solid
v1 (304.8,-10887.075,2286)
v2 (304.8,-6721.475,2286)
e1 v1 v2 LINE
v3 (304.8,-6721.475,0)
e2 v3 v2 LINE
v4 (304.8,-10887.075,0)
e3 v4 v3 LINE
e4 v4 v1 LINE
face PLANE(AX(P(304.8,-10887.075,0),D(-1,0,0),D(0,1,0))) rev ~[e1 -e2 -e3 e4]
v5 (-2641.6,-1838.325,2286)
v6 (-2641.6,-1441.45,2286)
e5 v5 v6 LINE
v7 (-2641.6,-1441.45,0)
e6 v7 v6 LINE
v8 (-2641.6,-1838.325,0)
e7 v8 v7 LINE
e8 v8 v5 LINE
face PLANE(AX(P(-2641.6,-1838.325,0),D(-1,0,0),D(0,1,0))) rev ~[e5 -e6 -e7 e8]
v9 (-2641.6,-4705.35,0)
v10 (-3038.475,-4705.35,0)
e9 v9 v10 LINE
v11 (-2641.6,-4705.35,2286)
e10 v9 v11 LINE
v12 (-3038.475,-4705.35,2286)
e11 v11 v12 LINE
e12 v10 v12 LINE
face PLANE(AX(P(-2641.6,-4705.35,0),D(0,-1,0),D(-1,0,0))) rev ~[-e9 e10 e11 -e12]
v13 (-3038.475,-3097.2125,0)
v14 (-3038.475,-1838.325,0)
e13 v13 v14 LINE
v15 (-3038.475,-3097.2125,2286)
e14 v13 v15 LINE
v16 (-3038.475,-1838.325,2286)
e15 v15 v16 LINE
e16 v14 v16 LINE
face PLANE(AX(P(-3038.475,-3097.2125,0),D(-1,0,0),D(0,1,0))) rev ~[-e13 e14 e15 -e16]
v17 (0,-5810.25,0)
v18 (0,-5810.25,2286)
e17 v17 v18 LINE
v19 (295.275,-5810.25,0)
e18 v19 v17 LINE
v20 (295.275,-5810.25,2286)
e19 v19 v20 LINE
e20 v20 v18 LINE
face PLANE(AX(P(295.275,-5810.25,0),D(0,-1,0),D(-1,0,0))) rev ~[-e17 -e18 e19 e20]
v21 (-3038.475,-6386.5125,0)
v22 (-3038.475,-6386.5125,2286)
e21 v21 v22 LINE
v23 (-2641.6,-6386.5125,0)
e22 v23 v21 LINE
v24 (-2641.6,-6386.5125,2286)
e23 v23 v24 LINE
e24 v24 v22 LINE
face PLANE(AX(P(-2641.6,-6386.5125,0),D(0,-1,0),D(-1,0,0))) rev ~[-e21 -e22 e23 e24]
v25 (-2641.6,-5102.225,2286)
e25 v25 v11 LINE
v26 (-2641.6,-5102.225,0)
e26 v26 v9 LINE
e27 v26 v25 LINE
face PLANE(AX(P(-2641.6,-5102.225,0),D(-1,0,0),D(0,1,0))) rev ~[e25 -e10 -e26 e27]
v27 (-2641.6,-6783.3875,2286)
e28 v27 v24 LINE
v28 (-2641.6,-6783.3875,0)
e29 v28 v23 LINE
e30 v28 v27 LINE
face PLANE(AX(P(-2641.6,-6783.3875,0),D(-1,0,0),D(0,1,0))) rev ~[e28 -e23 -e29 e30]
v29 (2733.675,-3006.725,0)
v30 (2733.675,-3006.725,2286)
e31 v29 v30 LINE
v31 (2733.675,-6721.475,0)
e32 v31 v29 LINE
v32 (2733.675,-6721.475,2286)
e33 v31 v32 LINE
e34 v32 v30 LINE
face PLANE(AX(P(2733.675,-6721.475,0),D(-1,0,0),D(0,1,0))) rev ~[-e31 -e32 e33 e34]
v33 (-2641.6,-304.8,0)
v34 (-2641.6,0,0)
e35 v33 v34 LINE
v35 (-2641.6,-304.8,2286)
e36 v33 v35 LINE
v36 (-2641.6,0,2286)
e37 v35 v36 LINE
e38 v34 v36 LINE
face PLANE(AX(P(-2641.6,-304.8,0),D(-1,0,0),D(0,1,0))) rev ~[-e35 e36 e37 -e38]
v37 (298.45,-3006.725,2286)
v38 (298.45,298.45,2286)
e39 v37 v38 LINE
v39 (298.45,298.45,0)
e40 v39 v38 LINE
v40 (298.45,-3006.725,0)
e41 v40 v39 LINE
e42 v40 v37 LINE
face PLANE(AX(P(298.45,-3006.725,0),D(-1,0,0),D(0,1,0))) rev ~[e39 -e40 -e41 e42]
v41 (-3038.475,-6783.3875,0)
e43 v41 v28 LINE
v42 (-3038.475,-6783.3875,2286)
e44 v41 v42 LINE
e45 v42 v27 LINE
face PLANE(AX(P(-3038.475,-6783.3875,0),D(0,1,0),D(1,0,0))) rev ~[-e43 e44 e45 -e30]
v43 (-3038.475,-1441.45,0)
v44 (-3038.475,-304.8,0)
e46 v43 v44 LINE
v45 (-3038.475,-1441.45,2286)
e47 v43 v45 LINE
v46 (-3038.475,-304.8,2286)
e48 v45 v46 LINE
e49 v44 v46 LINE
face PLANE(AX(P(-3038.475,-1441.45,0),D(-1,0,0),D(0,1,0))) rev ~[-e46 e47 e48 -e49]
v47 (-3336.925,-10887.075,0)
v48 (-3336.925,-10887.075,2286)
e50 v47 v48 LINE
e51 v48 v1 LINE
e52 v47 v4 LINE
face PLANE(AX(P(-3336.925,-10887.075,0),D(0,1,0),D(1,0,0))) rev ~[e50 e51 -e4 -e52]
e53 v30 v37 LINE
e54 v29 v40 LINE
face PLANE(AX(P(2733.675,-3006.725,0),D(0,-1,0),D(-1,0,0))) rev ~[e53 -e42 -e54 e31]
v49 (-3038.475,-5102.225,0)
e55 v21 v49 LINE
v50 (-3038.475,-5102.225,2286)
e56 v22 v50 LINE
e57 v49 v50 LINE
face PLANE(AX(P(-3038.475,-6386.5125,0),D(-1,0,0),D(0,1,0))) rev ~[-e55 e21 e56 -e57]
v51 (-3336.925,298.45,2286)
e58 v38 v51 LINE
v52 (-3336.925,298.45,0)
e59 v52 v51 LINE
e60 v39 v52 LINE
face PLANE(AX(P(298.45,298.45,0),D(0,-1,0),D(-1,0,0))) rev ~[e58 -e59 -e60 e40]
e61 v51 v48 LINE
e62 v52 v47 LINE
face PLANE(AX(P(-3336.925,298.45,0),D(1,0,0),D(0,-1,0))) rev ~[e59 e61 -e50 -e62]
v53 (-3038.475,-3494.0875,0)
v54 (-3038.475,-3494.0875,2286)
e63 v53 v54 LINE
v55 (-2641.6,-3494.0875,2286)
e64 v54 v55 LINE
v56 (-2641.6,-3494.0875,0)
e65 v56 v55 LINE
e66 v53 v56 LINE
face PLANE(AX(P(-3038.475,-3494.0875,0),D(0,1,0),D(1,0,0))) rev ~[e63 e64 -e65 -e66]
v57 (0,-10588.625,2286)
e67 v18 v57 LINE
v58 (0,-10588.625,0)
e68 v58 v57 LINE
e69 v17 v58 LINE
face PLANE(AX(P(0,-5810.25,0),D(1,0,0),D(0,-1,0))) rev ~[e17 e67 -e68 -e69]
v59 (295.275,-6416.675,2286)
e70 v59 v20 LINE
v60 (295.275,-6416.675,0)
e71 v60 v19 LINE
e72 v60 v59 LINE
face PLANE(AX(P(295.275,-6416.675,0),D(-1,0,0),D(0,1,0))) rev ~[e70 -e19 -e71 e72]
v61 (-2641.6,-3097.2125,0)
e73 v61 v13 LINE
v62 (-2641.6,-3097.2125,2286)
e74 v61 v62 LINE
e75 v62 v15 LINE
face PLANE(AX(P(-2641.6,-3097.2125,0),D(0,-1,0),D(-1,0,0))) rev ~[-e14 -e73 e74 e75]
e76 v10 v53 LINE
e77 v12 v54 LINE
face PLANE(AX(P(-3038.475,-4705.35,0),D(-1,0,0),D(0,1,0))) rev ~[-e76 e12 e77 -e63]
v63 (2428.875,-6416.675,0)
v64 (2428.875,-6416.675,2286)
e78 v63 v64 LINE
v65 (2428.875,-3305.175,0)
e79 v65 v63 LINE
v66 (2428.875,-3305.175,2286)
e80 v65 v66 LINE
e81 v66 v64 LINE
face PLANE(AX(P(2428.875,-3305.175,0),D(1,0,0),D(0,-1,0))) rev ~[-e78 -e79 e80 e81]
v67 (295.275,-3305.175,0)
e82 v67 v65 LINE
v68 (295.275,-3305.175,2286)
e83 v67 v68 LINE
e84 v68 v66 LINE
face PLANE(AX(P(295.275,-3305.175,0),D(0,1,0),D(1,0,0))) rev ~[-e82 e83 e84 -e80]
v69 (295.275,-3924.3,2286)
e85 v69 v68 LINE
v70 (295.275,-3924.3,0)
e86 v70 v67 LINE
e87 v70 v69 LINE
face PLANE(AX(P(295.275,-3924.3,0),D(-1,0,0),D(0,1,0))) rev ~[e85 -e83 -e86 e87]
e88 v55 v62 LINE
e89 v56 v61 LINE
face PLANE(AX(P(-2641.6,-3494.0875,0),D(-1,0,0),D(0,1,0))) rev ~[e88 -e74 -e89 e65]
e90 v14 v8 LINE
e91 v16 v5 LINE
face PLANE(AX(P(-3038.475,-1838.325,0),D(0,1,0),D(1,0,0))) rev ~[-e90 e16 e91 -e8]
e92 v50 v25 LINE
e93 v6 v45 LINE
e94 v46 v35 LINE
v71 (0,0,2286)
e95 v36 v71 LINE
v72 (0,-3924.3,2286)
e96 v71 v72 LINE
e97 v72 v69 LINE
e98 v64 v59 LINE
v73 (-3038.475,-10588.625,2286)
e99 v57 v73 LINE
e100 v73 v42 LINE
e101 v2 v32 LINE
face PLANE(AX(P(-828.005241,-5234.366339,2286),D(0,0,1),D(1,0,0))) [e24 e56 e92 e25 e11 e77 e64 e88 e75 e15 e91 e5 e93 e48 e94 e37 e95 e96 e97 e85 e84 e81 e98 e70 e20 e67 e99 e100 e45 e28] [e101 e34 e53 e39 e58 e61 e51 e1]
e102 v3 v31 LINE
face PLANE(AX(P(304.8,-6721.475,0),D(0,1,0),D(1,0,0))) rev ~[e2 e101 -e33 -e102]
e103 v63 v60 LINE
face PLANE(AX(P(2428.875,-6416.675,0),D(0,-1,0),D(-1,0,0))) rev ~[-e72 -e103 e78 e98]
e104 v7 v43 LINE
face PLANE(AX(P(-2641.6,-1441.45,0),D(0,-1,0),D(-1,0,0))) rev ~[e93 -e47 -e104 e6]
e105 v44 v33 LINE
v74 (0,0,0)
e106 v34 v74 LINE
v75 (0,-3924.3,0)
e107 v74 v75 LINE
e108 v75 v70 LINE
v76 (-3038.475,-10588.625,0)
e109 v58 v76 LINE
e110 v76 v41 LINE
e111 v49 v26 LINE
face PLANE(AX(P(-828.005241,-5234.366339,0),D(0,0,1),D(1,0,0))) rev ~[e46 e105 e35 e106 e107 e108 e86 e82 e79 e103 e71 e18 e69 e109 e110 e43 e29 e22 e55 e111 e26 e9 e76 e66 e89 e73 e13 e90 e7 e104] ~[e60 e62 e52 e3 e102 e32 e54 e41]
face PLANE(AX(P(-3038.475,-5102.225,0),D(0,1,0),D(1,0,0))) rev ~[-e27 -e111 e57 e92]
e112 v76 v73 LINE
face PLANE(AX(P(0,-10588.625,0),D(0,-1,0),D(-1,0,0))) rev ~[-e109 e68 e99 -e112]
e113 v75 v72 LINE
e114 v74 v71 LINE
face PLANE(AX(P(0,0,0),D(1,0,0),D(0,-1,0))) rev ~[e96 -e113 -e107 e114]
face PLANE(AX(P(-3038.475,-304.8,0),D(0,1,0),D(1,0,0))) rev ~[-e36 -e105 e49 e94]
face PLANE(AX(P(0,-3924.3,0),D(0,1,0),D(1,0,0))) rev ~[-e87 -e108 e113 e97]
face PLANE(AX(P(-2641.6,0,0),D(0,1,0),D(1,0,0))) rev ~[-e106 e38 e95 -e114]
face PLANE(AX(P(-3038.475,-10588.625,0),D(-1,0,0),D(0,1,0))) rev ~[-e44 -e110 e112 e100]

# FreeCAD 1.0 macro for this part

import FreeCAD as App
import Part
import Sketcher
Q = App.Units.Quantity

doc = App.newDocument("Part")
body = doc.addObject("PartDesign::Body", "Body")

# Sketch on XY plane
sketch1 = doc.addObject("Sketcher::SketchObject", "Sketch")
body.addObject(sketch1)
sketch1.AttachmentSupport = (doc.XY_Plane, [""])
sketch1.MapMode = "FlatFace"
sketch1.addGeometry(Part.LineSegment(App.Vector(298, 298, 0), App.Vector(-3337, 298, 0)), False)
sketch1.addGeometry(Part.LineSegment(App.Vector(-3337, 298, 0), App.Vector(-3337, -10887, 0)), False)
sketch1.addGeometry(Part.LineSegment(App.Vector(-3337, -10887, 0), App.Vector(305, -10887, 0)), False)
sketch1.addGeometry(Part.LineSegment(App.Vector(305, -10887, 0), App.Vector(305, -6721, 0)), False)
sketch1.addGeometry(Part.LineSegment(App.Vector(305, -6721, 0), App.Vector(2734, -6721, 0)), False)
sketch1.addGeometry(Part.LineSegment(App.Vector(2734, -6721, 0), App.Vector(2734, -3007, 0)), False)
sketch1.addGeometry(Part.LineSegment(App.Vector(2734, -3007, 0), App.Vector(298, -3007, 0)), False)
sketch1.addGeometry(Part.LineSegment(App.Vector(298, -3007, 0), App.Vector(298, 298, 0)), False)
sketch1.addGeometry(Part.LineSegment(App.Vector(-2642, -305, 0), App.Vector(-2642, 0, 0)), False)
sketch1.addGeometry(Part.LineSegment(App.Vector(-2642, 0, 0), App.Vector(0, 0, 0)), False)
sketch1.addGeometry(Part.LineSegment(App.Vector(0, 0, 0), App.Vector(0, -3924, 0)), False)
sketch1.addGeometry(Part.LineSegment(App.Vector(0, -3924, 0), App.Vector(295, -3924, 0)), False)
sketch1.addGeometry(Part.LineSegment(App.Vector(295, -3924, 0), App.Vector(295, -3305, 0)), False)
sketch1.addGeometry(Part.LineSegment(App.Vector(295, -3305, 0), App.Vector(2429, -3305, 0)), False)
sketch1.addGeometry(Part.LineSegment(App.Vector(2429, -3305, 0), App.Vector(2429, -6417, 0)), False)
sketch1.addGeometry(Part.LineSegment(App.Vector(2429, -6417, 0), App.Vector(295, -6417, 0)), False)
sketch1.addGeometry(Part.LineSegment(App.Vector(295, -6417, 0), App.Vector(295, -5810, 0)), False)
sketch1.addGeometry(Part.LineSegment(App.Vector(295, -5810, 0), App.Vector(0, -5810, 0)), False)
sketch1.addGeometry(Part.LineSegment(App.Vector(0, -5810, 0), App.Vector(0, -10589, 0)), False)
sketch1.addGeometry(Part.LineSegment(App.Vector(0, -10589, 0), App.Vector(-3038, -10589, 0)), False)
sketch1.addGeometry(Part.LineSegment(App.Vector(-3038, -10589, 0), App.Vector(-3038, -6783, 0)), False)
sketch1.addGeometry(Part.LineSegment(App.Vector(-3038, -6783, 0), App.Vector(-2642, -6783, 0)), False)
sketch1.addGeometry(Part.LineSegment(App.Vector(-2642, -6783, 0), App.Vector(-2642, -6387, 0)), False)
sketch1.addGeometry(Part.LineSegment(App.Vector(-2642, -6387, 0), App.Vector(-3038, -6387, 0)), False)
sketch1.addGeometry(Part.LineSegment(App.Vector(-3038, -6387, 0), App.Vector(-3038, -5102, 0)), False)
sketch1.addGeometry(Part.LineSegment(App.Vector(-3038, -5102, 0), App.Vector(-2642, -5102, 0)), False)
sketch1.addGeometry(Part.LineSegment(App.Vector(-2642, -5102, 0), App.Vector(-2642, -4705, 0)), False)
sketch1.addGeometry(Part.LineSegment(App.Vector(-2642, -4705, 0), App.Vector(-3038, -4705, 0)), False)
sketch1.addGeometry(Part.LineSegment(App.Vector(-3038, -4705, 0), App.Vector(-3038, -3494, 0)), False)
sketch1.addGeometry(Part.LineSegment(App.Vector(-3038, -3494, 0), App.Vector(-2642, -3494, 0)), False)
sketch1.addGeometry(Part.LineSegment(App.Vector(-2642, -3494, 0), App.Vector(-2642, -3097, 0)), False)
sketch1.addGeometry(Part.LineSegment(App.Vector(-2642, -3097, 0), App.Vector(-3038, -3097, 0)), False)
sketch1.addGeometry(Part.LineSegment(App.Vector(-3038, -3097, 0), App.Vector(-3038, -1838, 0)), False)
sketch1.addGeometry(Part.LineSegment(App.Vector(-3038, -1838, 0), App.Vector(-2642, -1838, 0)), False)
sketch1.addGeometry(Part.LineSegment(App.Vector(-2642, -1838, 0), App.Vector(-2642, -1441, 0)), False)
sketch1.addGeometry(Part.LineSegment(App.Vector(-2642, -1441, 0), App.Vector(-3038, -1441, 0)), False)
sketch1.addGeometry(Part.LineSegment(App.Vector(-3038, -1441, 0), App.Vector(-3038, -305, 0)), False)
sketch1.addGeometry(Part.LineSegment(App.Vector(-3038, -305, 0), App.Vector(-2642, -305, 0)), False)
sketch1.addConstraint(Sketcher.Constraint("Coincident", 0, 2, 1, 1))
sketch1.addConstraint(Sketcher.Constraint("Coincident", 1, 2, 2, 1))
sketch1.addConstraint(Sketcher.Constraint("Coincident", 2, 2, 3, 1))
sketch1.addConstraint(Sketcher.Constraint("Coincident", 3, 2, 4, 1))
sketch1.addConstraint(Sketcher.Constraint("Coincident", 4, 2, 5, 1))
sketch1.addConstraint(Sketcher.Constraint("Coincident", 5, 2, 6, 1))
sketch1.addConstraint(Sketcher.Constraint("Coincident", 6, 2, 7, 1))
sketch1.addConstraint(Sketcher.Constraint("Coincident", 7, 2, 0, 1))
sketch1.addConstraint(Sketcher.Constraint("Coincident", 8, 2, 9, 1))
sketch1.addConstraint(Sketcher.Constraint("Coincident", 9, 2, 10, 1))
sketch1.addConstraint(Sketcher.Constraint("Coincident", 10, 2, 11, 1))
sketch1.addConstraint(Sketcher.Constraint("Coincident", 11, 2, 12, 1))
sketch1.addConstraint(Sketcher.Constraint("Coincident", 12, 2, 13, 1))
sketch1.addConstraint(Sketcher.Constraint("Coincident", 13, 2, 14, 1))
sketch1.addConstraint(Sketcher.Constraint("Coincident", 14, 2, 15, 1))
sketch1.addConstraint(Sketcher.Constraint("Coincident", 15, 2, 16, 1))
sketch1.addConstraint(Sketcher.Constraint("Coincident", 16, 2, 17, 1))
sketch1.addConstraint(Sketcher.Constraint("Coincident", 17, 2, 18, 1))
sketch1.addConstraint(Sketcher.Constraint("Coincident", 18, 2, 19, 1))
sketch1.addConstraint(Sketcher.Constraint("Coincident", 19, 2, 20, 1))
sketch1.addConstraint(Sketcher.Constraint("Coincident", 20, 2, 21, 1))
sketch1.addConstraint(Sketcher.Constraint("Coincident", 21, 2, 22, 1))
sketch1.addConstraint(Sketcher.Constraint("Coincident", 22, 2, 23, 1))
sketch1.addConstraint(Sketcher.Constraint("Coincident", 23, 2, 24, 1))
sketch1.addConstraint(Sketcher.Constraint("Coincident", 24, 2, 25, 1))
sketch1.addConstraint(Sketcher.Constraint("Coincident", 25, 2, 26, 1))
sketch1.addConstraint(Sketcher.Constraint("Coincident", 26, 2, 27, 1))
sketch1.addConstraint(Sketcher.Constraint("Coincident", 27, 2, 28, 1))
sketch1.addConstraint(Sketcher.Constraint("Coincident", 28, 2, 29, 1))
sketch1.addConstraint(Sketcher.Constraint("Coincident", 29, 2, 30, 1))
sketch1.addConstraint(Sketcher.Constraint("Coincident", 30, 2, 31, 1))
sketch1.addConstraint(Sketcher.Constraint("Coincident", 31, 2, 32, 1))
sketch1.addConstraint(Sketcher.Constraint("Coincident", 32, 2, 33, 1))
sketch1.addConstraint(Sketcher.Constraint("Coincident", 33, 2, 34, 1))
sketch1.addConstraint(Sketcher.Constraint("Coincident", 34, 2, 35, 1))
sketch1.addConstraint(Sketcher.Constraint("Coincident", 35, 2, 36, 1))
sketch1.addConstraint(Sketcher.Constraint("Coincident", 36, 2, 37, 1))
sketch1.addConstraint(Sketcher.Constraint("Coincident", 37, 2, 8, 1))
sketch1.addConstraint(Sketcher.Constraint("Horizontal", 0))
sketch1.addConstraint(Sketcher.Constraint("Vertical", 1))
sketch1.addConstraint(Sketcher.Constraint("Horizontal", 2))
sketch1.addConstraint(Sketcher.Constraint("Vertical", 3))
sketch1.addConstraint(Sketcher.Constraint("Horizontal", 4))
sketch1.addConstraint(Sketcher.Constraint("Vertical", 5))
sketch1.addConstraint(Sketcher.Constraint("Horizontal", 6))
sketch1.addConstraint(Sketcher.Constraint("Vertical", 7))
sketch1.addConstraint(Sketcher.Constraint("Vertical", 8))
sketch1.addConstraint(Sketcher.Constraint("Horizontal", 9))
sketch1.addConstraint(Sketcher.Constraint("Vertical", 10))
sketch1.addConstraint(Sketcher.Constraint("Horizontal", 11))
sketch1.addConstraint(Sketcher.Constraint("Vertical", 12))
sketch1.addConstraint(Sketcher.Constraint("Horizontal", 13))
sketch1.addConstraint(Sketcher.Constraint("Vertical", 14))
sketch1.addConstraint(Sketcher.Constraint("Horizontal", 15))
sketch1.addConstraint(Sketcher.Constraint("Vertical", 16))
sketch1.addConstraint(Sketcher.Constraint("Horizontal", 17))
sketch1.addConstraint(Sketcher.Constraint("Vertical", 18))
sketch1.addConstraint(Sketcher.Constraint("Horizontal", 19))
sketch1.addConstraint(Sketcher.Constraint("Vertical", 20))
sketch1.addConstraint(Sketcher.Constraint("Horizontal", 21))
sketch1.addConstraint(Sketcher.Constraint("Vertical", 22))
sketch1.addConstraint(Sketcher.Constraint("Horizontal", 23))
sketch1.addConstraint(Sketcher.Constraint("Vertical", 24))
sketch1.addConstraint(Sketcher.Constraint("Horizontal", 25))
sketch1.addConstraint(Sketcher.Constraint("Vertical", 26))
sketch1.addConstraint(Sketcher.Constraint("Horizontal", 27))
sketch1.addConstraint(Sketcher.Constraint("Vertical", 28))
sketch1.addConstraint(Sketcher.Constraint("Horizontal", 29))
sketch1.addConstraint(Sketcher.Constraint("Vertical", 30))
sketch1.addConstraint(Sketcher.Constraint("Horizontal", 31))
sketch1.addConstraint(Sketcher.Constraint("Vertical", 32))
sketch1.addConstraint(Sketcher.Constraint("Horizontal", 33))
sketch1.addConstraint(Sketcher.Constraint("Vertical", 34))
sketch1.addConstraint(Sketcher.Constraint("Horizontal", 35))
sketch1.addConstraint(Sketcher.Constraint("Vertical", 36))
sketch1.addConstraint(Sketcher.Constraint("Horizontal", 37))
sketch1.addConstraint(Sketcher.Constraint("Coincident", 9, 2, -1, 1))
sketch1.addConstraint(Sketcher.Constraint("PointOnObject", 17, 2, -2))
sketch1.addConstraint(Sketcher.Constraint("Vertical", 12, 2, 15, 2))
sketch1.addConstraint(Sketcher.Constraint("Vertical", 8, 2, 21, 2))
sketch1.addConstraint(Sketcher.Constraint("Vertical", 20, 2, 23, 2))
sketch1.addConstraint(Sketcher.Constraint("Vertical", 22, 2, 25, 2))
sketch1.addConstraint(Sketcher.Constraint("Vertical", 24, 2, 27, 2))
sketch1.addConstraint(Sketcher.Constraint("Vertical", 26, 2, 29, 2))
sketch1.addConstraint(Sketcher.Constraint("Vertical", 28, 2, 31, 2))
sketch1.addConstraint(Sketcher.Constraint("Vertical", 30, 2, 33, 2))
sketch1.addConstraint(Sketcher.Constraint("Vertical", 32, 2, 35, 2))
sketch1.addConstraint(Sketcher.Constraint("Equal", 37, 22))
sketch1.addConstraint(Sketcher.Constraint("Equal", 22, 26))
sketch1.addConstraint(Sketcher.Constraint("Equal", 26, 30))
sketch1.addConstraint(Sketcher.Constraint("Equal", 30, 34))
sketch1.addConstraint(Sketcher.Constraint("DistanceX", 9, 1, 9, 2, Q("104 in")))
sketch1.addConstraint(Sketcher.Constraint("DistanceX", 13, 1, 13, 2, Q("84 in")))
sketch1.addConstraint(Sketcher.Constraint("DistanceY", 3, 1, 3, 2, Q("164 in")))
sketch1.addConstraint(Sketcher.Constraint("DistanceY", 8, 1, 8, 2, Q("12 in")))
sketch1.addConstraint(Sketcher.Constraint("DistanceY", 10, 2, 10, 1, Q("154.5 in")))
sketch1.addConstraint(Sketcher.Constraint("DistanceY", 14, 2, 14, 1, Q("122.5 in")))
sketch1.addConstraint(Sketcher.Constraint("DistanceX", -1, 1, 2, 2, Q("12 in")))
sketch1.addConstraint(Sketcher.Constraint("DistanceX", 1, 2, 4, 2, Q("239 in")))
sketch1.addConstraint(Sketcher.Constraint("DistanceX", 11, 2, 5, 2, Q("96 in")))
sketch1.addConstraint(Sketcher.Constraint("DistanceY", 4, 2, 14, 2, Q("12 in")))
sketch1.addConstraint(Sketcher.Constraint("DistanceY", 5, 1, 5, 2, Q("146.25 in")))
sketch1.addConstraint(Sketcher.Constraint("DistanceY", 36, 1, 36, 2, Q("44.75 in")))
sketch1.addConstraint(Sketcher.Constraint("DistanceX", 0, 2, 0, 1, Q("143.125 in")))
sketch1.addConstraint(Sketcher.Constraint("DistanceX", 2, 1, 2, 2, Q("143.375 in")))
sketch1.addConstraint(Sketcher.Constraint("DistanceX", 19, 2, 19, 1, Q("119.625 in")))
sketch1.addConstraint(Sketcher.Constraint("DistanceY", 1, 2, 1, 1, Q("440.375 in")))
sketch1.addConstraint(Sketcher.Constraint("DistanceY", 12, 1, 12, 2, Q("24.375 in")))
sketch1.addConstraint(Sketcher.Constraint("DistanceY", 16, 1, 16, 2, Q("23.875 in")))
sketch1.addConstraint(Sketcher.Constraint("DistanceY", 18, 2, 18, 1, Q("188.125 in")))
sketch1.addConstraint(Sketcher.Constraint("DistanceY", 20, 1, 20, 2, Q("149.8125 in")))
sketch1.addConstraint(Sketcher.Constraint("DistanceY", 24, 1, 24, 2, Q("50.5625 in")))
sketch1.addConstraint(Sketcher.Constraint("DistanceY", 28, 1, 28, 2, Q("47.6875 in")))
pad1 = doc.addObject("PartDesign::Pad", "Pad")
body.addObject(pad1)
pad1.Profile = sketch1
pad1.Length = Q("90 in")

doc.recompute()
